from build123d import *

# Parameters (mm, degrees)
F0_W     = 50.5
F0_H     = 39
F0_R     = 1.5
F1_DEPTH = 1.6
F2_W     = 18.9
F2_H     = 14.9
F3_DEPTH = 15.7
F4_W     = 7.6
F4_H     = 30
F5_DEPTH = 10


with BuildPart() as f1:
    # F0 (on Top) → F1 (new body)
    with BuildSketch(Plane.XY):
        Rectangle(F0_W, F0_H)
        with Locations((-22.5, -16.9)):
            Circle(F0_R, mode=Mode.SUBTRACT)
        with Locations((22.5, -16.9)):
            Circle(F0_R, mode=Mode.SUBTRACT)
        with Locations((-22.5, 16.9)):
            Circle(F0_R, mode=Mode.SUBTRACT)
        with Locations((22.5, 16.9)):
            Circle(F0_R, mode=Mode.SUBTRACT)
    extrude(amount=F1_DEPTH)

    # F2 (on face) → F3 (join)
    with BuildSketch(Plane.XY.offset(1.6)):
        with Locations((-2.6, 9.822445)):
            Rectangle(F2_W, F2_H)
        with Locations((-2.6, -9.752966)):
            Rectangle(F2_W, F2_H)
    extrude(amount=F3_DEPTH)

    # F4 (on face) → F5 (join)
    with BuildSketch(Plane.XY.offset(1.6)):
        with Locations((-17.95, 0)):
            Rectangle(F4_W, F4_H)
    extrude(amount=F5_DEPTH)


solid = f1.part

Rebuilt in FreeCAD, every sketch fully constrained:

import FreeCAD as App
import Part
import Sketcher

V = App.Vector


def add_polygon(sketch, points):
    """Adds a closed chain of lines whose ends are joined by coincident constraints."""
    first, n = sketch.GeometryCount, len(points)
    for a, b in zip(points, points[1:] + points[:1]):
        sketch.addGeometry(Part.LineSegment(App.Vector(*a, 0), App.Vector(*b, 0)), False)
    for i in range(n):
        sketch.addConstraint(Sketcher.Constraint("Coincident", first + i, 2, first + (i + 1) % n, 1))

doc = App.newDocument("Part")
params = doc.addObject("Spreadsheet::Sheet", "Params")
for row, (alias, value) in enumerate([
    ("sketch1_diameter", "3 mm"),
    ("sketch1_height", "39 mm"),
    ("sketch1_width", "50.5 mm"),
    ("pad1_length", "1.6 mm"),
    ("sketch2_width", "18.9 mm"),
    ("sketch2_height", "14.9 mm"),
    ("pad2_length", "15.7 mm"),
    ("sketch3_height", "30 mm"),
    ("sketch3_width", "7.6 mm"),
    ("pad3_length", "10 mm"),
], start=1):
    params.set(f"A{row}", alias)
    params.set(f"B{row}", "=" + value)
    params.setAlias(f"B{row}", alias)

body = doc.addObject("PartDesign::Body", "Body")

sketch1 = body.newObject("Sketcher::SketchObject", "Sketch")
sketch1.AttachmentSupport = (doc.getObject("XY_Plane"), [""])
sketch1.MapMode = "FlatFace"
add_polygon(sketch1, [(-25.2, 19.5), (-25.2, -19.5), (25.2, -19.5), (25.2, 19.5)])
sketch1.addGeometry(Part.Circle(V(-22.5, -16.9, 0), V(0, 0, 1), 1.5), False)
sketch1.addGeometry(Part.Circle(V(22.5, -16.9, 0), V(0, 0, 1), 1.5), False)
sketch1.addGeometry(Part.Circle(V(-22.5, 16.9, 0), V(0, 0, 1), 1.5), False)
sketch1.addGeometry(Part.Circle(V(22.5, 16.9, 0), V(0, 0, 1), 1.5), False)
sketch1.addConstraint([
    Sketcher.Constraint("Vertical", 0),
    Sketcher.Constraint("Horizontal", 1),
    Sketcher.Constraint("Vertical", 2),
    Sketcher.Constraint("Horizontal", 3),
    Sketcher.Constraint("Equal", 4, 5),
    Sketcher.Constraint("Equal", 5, 6),
    Sketcher.Constraint("Equal", 6, 7),
    Sketcher.Constraint("Symmetric", 5, 3, 6, 3, -1, 1),
    Sketcher.Constraint("Symmetric", 4, 3, 7, 3, -1, 1),
    Sketcher.Constraint("Symmetric", 0, 2, 2, 2, -1, 1),
    Sketcher.Constraint("Symmetric", 4, 3, 5, 3, -2),
    Sketcher.Constraint("Diameter", 4, 3.0),
    Sketcher.Constraint("DistanceY", 0, 2, 0, 1, 39.0),
    Sketcher.Constraint("DistanceX", 1, 1, 1, 2, 50.5),
    Sketcher.Constraint("DistanceX", 4, 3, 5, 3, 45.0),
    Sketcher.Constraint("DistanceY", 4, 3, -1, 1, 16.9),
])
sketch1.setExpression("Constraints[15]", "Params.sketch1_diameter")
sketch1.setExpression("Constraints[16]", "Params.sketch1_height")
sketch1.setExpression("Constraints[17]", "Params.sketch1_width")
pad1 = body.newObject("PartDesign::Pad", "Pad")
pad1.Profile = sketch1
pad1.setExpression("Length", "Params.pad1_length")

sketch2 = body.newObject("Sketcher::SketchObject", "Sketch001")
sketch2.AttachmentSupport = (doc.getObject("XY_Plane"), [""])
sketch2.MapMode = "FlatFace"
sketch2.AttachmentOffset = App.Placement(V(0, 0, 1.6), App.Rotation())
add_polygon(sketch2, [(-12, 17), (-12, 2), (7, 2), (7, 17)])
add_polygon(sketch2, [(-12, -2), (-12, -17), (7, -17), (7, -2)])
sketch2.addConstraint([
    Sketcher.Constraint("Vertical", 0),
    Sketcher.Constraint("Horizontal", 1),
    Sketcher.Constraint("Vertical", 2),
    Sketcher.Constraint("Horizontal", 3),
    Sketcher.Constraint("Vertical", 4),
    Sketcher.Constraint("Horizontal", 5),
    Sketcher.Constraint("Vertical", 6),
    Sketcher.Constraint("Horizontal", 7),
    Sketcher.Constraint("Vertical", 3, 2, 4, 2),
    Sketcher.Constraint("Vertical", 2, 2, 5, 2),
    Sketcher.Constraint("Equal", 2, 4),
    Sketcher.Constraint("DistanceX", 1, 1, 1, 2, 18.9),
    Sketcher.Constraint("DistanceY", 0, 2, 0, 1, 14.9),
    Sketcher.Constraint("DistanceX", 0, 2, -1, 1, 12.05),
    Sketcher.Constraint("DistanceY", 4, 2, 0, 2, 19.575411),
    Sketcher.Constraint("DistanceY", -1, 1, 0, 2, 2.372445),
])
sketch2.setExpression("Constraints[19]", "Params.sketch2_width")
sketch2.setExpression("Constraints[20]", "Params.sketch2_height")
pad2 = body.newObject("PartDesign::Pad", "Pad001")
pad2.Profile = sketch2
pad2.setExpression("Length", "Params.pad2_length")

sketch3 = body.newObject("Sketcher::SketchObject", "Sketch002")
sketch3.AttachmentSupport = (doc.getObject("XY_Plane"), [""])
sketch3.MapMode = "FlatFace"
sketch3.AttachmentOffset = App.Placement(V(0, 0, 1.6), App.Rotation())
add_polygon(sketch3, [(-22, 15), (-22, -15), (-14, -15), (-14, 15)])
sketch3.addConstraint([
    Sketcher.Constraint("Vertical", 0),
    Sketcher.Constraint("Horizontal", 1),
    Sketcher.Constraint("Vertical", 2),
    Sketcher.Constraint("Horizontal", 3),
    Sketcher.Constraint("DistanceY", 0, 2, 0, 1, 30.0),
    Sketcher.Constraint("DistanceX", 1, 1, 1, 2, 7.6),
    Sketcher.Constraint("DistanceY", 0, 2, -1, 1, 15.0),
    Sketcher.Constraint("DistanceX", 0, 2, -1, 1, 21.75),
])
sketch3.setExpression("Constraints[8]", "Params.sketch3_height")
sketch3.setExpression("Constraints[9]", "Params.sketch3_width")
pad3 = body.newObject("PartDesign::Pad", "Pad002")
pad3.Profile = sketch3
pad3.setExpression("Length", "Params.pad3_length")

doc.recompute()
